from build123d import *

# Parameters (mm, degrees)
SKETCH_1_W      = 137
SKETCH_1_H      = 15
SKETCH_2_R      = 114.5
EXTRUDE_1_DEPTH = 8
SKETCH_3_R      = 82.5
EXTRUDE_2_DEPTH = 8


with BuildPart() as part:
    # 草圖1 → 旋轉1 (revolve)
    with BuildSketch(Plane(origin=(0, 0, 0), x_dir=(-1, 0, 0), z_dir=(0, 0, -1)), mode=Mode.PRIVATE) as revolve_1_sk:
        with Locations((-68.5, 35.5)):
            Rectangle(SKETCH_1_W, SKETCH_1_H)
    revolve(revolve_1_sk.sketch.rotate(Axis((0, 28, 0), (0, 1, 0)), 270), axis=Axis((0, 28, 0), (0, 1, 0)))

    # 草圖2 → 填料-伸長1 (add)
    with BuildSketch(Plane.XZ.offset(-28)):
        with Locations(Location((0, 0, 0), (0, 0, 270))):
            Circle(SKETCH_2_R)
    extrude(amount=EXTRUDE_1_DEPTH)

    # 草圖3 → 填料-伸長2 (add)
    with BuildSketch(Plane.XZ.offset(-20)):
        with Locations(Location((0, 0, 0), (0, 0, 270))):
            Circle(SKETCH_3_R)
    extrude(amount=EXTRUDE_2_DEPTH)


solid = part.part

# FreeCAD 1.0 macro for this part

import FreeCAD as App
import Part
import Sketcher
Q = App.Units.Quantity

doc = App.newDocument("Part")
body = doc.addObject("PartDesign::Body", "Body")

# Sketch on XY plane
sketch1 = body.newObject("Sketcher::SketchObject", "Sketch")
sketch1.AttachmentSupport = (doc.getObject("XY_Plane"), [""])
sketch1.MapMode = "FlatFace"
sketch1.addGeometry(Part.LineSegment(App.Vector(137, 43, 0), App.Vector(137, 28, 0)), False)
sketch1.addGeometry(Part.LineSegment(App.Vector(137, 28, 0), App.Vector(0, 28, 0)), False)
sketch1.addGeometry(Part.LineSegment(App.Vector(0, 28, 0), App.Vector(0, 43, 0)), False)
sketch1.addGeometry(Part.LineSegment(App.Vector(0, 43, 0), App.Vector(137, 43, 0)), False)
sketch1.addConstraint(Sketcher.Constraint("Coincident", 0, 2, 1, 1))
sketch1.addConstraint(Sketcher.Constraint("Coincident", 1, 2, 2, 1))
sketch1.addConstraint(Sketcher.Constraint("Coincident", 2, 2, 3, 1))
sketch1.addConstraint(Sketcher.Constraint("Coincident", 3, 2, 0, 1))
sketch1.addConstraint(Sketcher.Constraint("Vertical", 0))
sketch1.addConstraint(Sketcher.Constraint("Horizontal", 1))
sketch1.addConstraint(Sketcher.Constraint("Vertical", 2))
sketch1.addConstraint(Sketcher.Constraint("Horizontal", 3))
sketch1.addConstraint(Sketcher.Constraint("PointOnObject", 1, 2, -2))
sketch1.addConstraint(Sketcher.Constraint("DistanceX", 1, 2, 1, 1, Q("137 mm")))
sketch1.addConstraint(Sketcher.Constraint("DistanceY", 0, 2, 0, 1, Q("15 mm")))
sketch1.addConstraint(Sketcher.Constraint("DistanceY", -1, 1, 0, 2, Q("28 mm")))
revolution = body.newObject("PartDesign::Revolution", "Revolution")
revolution.Profile = sketch1
revolution.ReferenceAxis = (sketch1, ["V_Axis"])
revolution.Angle = 360

# Sketch on XZ plane
sketch2 = body.newObject("Sketcher::SketchObject", "Sketch001")
sketch2.AttachmentSupport = (doc.getObject("XZ_Plane"), [""])
sketch2.MapMode = "FlatFace"
sketch2.AttachmentOffset = App.Placement(App.Vector(0, 0, -28), App.Rotation())
sketch2.addGeometry(Part.Circle(App.Vector(0, 0, 0), App.Vector(0, 0, 1), 114), False)
sketch2.addConstraint(Sketcher.Constraint("Coincident", 0, 3, -1, 1))
sketch2.addConstraint(Sketcher.Constraint("Diameter", 0, Q("229 mm")))
pad1 = body.newObject("PartDesign::Pad", "Pad")
pad1.Profile = sketch2
pad1.Length = 8

# Sketch on XZ plane
sketch3 = body.newObject("Sketcher::SketchObject", "Sketch002")
sketch3.AttachmentSupport = (doc.getObject("XZ_Plane"), [""])
sketch3.MapMode = "FlatFace"
sketch3.AttachmentOffset = App.Placement(App.Vector(0, 0, -20), App.Rotation())
sketch3.addGeometry(Part.Circle(App.Vector(0, 0, 0), App.Vector(0, 0, 1), 82), False)
sketch3.addConstraint(Sketcher.Constraint("Coincident", 0, 3, -1, 1))
sketch3.addConstraint(Sketcher.Constraint("Diameter", 0, Q("165 mm")))
pad2 = body.newObject("PartDesign::Pad", "Pad001")
pad2.Profile = sketch3
pad2.Length = 8

doc.recompute()
